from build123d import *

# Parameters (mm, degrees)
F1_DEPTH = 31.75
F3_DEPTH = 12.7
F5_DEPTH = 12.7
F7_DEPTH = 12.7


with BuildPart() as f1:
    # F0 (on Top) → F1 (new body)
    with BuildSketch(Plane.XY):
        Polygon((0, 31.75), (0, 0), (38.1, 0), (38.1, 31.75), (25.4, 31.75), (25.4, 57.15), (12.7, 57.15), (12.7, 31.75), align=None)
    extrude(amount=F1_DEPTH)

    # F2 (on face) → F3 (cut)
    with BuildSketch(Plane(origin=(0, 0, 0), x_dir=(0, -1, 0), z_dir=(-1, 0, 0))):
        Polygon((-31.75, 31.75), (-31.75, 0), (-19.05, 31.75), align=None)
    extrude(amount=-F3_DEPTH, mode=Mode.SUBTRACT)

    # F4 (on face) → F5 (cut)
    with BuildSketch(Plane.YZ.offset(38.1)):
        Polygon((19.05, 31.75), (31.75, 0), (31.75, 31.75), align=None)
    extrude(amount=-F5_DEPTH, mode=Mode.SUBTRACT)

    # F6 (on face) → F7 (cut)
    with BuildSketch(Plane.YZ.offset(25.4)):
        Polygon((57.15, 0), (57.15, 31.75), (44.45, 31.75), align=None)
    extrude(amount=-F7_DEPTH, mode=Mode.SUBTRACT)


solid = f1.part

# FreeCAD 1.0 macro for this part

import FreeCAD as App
import Part
import Sketcher

V = App.Vector
Q = App.Units.Quantity


def add_polygon(sketch, points):
    """Adds a closed chain of lines whose ends are joined by coincident constraints."""
    first, n = sketch.GeometryCount, len(points)
    for a, b in zip(points, points[1:] + points[:1]):
        sketch.addGeometry(Part.LineSegment(App.Vector(*a, 0), App.Vector(*b, 0)), False)
    for i in range(n):
        sketch.addConstraint(Sketcher.Constraint("Coincident", first + i, 2, first + (i + 1) % n, 1))

doc = App.newDocument("Part")
body = doc.addObject("PartDesign::Body", "Body")

# Sketch on XY plane
sketch1 = body.newObject("Sketcher::SketchObject", "Sketch")
sketch1.AttachmentSupport = (doc.getObject("XY_Plane"), [""])
sketch1.MapMode = "FlatFace"
add_polygon(sketch1, [(0, 32), (0, 0), (38, 0), (38, 32), (25, 32), (25, 57), (13, 57), (13, 32)])  # lines 0-7
sketch1.addConstraint([
    Sketcher.Constraint("Vertical", 0),
    Sketcher.Constraint("Horizontal", 1),
    Sketcher.Constraint("Vertical", 2),
    Sketcher.Constraint("Horizontal", 3),
    Sketcher.Constraint("Vertical", 4),
    Sketcher.Constraint("Horizontal", 5),
    Sketcher.Constraint("Vertical", 6),
    Sketcher.Constraint("Horizontal", 7),
    Sketcher.Constraint("Coincident", 0, 2, -1, 1),
    Sketcher.Constraint("Horizontal", 3, 2, 6, 2),
    Sketcher.Constraint("Equal", 3, 5),
    Sketcher.Constraint("Equal", 5, 7),
    Sketcher.Constraint("DistanceY", 4, 1, 4, 2, Q("1 in")),
    Sketcher.Constraint("DistanceX", 1, 1, 1, 2, Q("1.5 in")),
    Sketcher.Constraint("DistanceY", 0, 2, 0, 1, Q("1.25 in")),
])
pad1 = body.newObject("PartDesign::Pad", "Pad")
pad1.Profile = sketch1
pad1.Length = Q("1.25 in")

# Sketch on YZ plane
sketch2 = body.newObject("Sketcher::SketchObject", "Sketch001")
sketch2.AttachmentSupport = (doc.getObject("YZ_Plane"), [""])
sketch2.MapMode = "FlatFace"
add_polygon(sketch2, [(32, 32), (32, 0), (19, 32)])  # lines 0-2
sketch2.addConstraint([
    Sketcher.Constraint("Vertical", 0),
    Sketcher.Constraint("Horizontal", 2),
    Sketcher.Constraint("PointOnObject", 0, 2, -1),
    Sketcher.Constraint("DistanceX", 2, 1, 2, 2, Q("0.5 in")),
    Sketcher.Constraint("DistanceY", 0, 2, 0, 1, Q("1.25 in")),
    Sketcher.Constraint("DistanceX", -1, 1, 0, 2, Q("1.25 in")),
])
pocket1 = body.newObject("PartDesign::Pocket", "Pocket")
pocket1.Profile = sketch2
pocket1.Length = Q("0.5 in")
pocket1.Reversed = True

# Sketch on YZ plane
sketch3 = body.newObject("Sketcher::SketchObject", "Sketch002")
sketch3.AttachmentSupport = (doc.getObject("YZ_Plane"), [""])
sketch3.MapMode = "FlatFace"
sketch3.AttachmentOffset = App.Placement(V(0, 0, 1.5 * 25.4), App.Rotation())
add_polygon(sketch3, [(19, 32), (32, 0), (32, 32)])  # lines 0-2
sketch3.addConstraint([
    Sketcher.Constraint("Vertical", 1),
    Sketcher.Constraint("Horizontal", 2),
    Sketcher.Constraint("PointOnObject", 0, 2, -1),
    Sketcher.Constraint("DistanceX", 2, 2, 2, 1, Q("0.5 in")),
    Sketcher.Constraint("DistanceY", 1, 1, 1, 2, Q("1.25 in")),
    Sketcher.Constraint("DistanceX", -1, 1, 0, 2, Q("1.25 in")),
])
pocket2 = body.newObject("PartDesign::Pocket", "Pocket001")
pocket2.Profile = sketch3
pocket2.Length = Q("0.5 in")

# Sketch on YZ plane
sketch4 = body.newObject("Sketcher::SketchObject", "Sketch003")
sketch4.AttachmentSupport = (doc.getObject("YZ_Plane"), [""])
sketch4.MapMode = "FlatFace"
sketch4.AttachmentOffset = App.Placement(V(0, 0, 1 * 25.4), App.Rotation())
add_polygon(sketch4, [(57, 0), (57, 32), (44, 32)])  # lines 0-2
sketch4.addConstraint([
    Sketcher.Constraint("Vertical", 0),
    Sketcher.Constraint("Horizontal", 1),
    Sketcher.Constraint("PointOnObject", 2, 2, -1),
    Sketcher.Constraint("DistanceX", 1, 2, 1, 1, Q("0.5 in")),
    Sketcher.Constraint("DistanceY", 0, 1, 0, 2, Q("1.25 in")),
    Sketcher.Constraint("DistanceX", -1, 1, 0, 2, Q("2.25 in")),
])
pocket3 = body.newObject("PartDesign::Pocket", "Pocket002")
pocket3.Profile = sketch4
pocket3.Length = Q("0.5 in")

doc.recompute()
